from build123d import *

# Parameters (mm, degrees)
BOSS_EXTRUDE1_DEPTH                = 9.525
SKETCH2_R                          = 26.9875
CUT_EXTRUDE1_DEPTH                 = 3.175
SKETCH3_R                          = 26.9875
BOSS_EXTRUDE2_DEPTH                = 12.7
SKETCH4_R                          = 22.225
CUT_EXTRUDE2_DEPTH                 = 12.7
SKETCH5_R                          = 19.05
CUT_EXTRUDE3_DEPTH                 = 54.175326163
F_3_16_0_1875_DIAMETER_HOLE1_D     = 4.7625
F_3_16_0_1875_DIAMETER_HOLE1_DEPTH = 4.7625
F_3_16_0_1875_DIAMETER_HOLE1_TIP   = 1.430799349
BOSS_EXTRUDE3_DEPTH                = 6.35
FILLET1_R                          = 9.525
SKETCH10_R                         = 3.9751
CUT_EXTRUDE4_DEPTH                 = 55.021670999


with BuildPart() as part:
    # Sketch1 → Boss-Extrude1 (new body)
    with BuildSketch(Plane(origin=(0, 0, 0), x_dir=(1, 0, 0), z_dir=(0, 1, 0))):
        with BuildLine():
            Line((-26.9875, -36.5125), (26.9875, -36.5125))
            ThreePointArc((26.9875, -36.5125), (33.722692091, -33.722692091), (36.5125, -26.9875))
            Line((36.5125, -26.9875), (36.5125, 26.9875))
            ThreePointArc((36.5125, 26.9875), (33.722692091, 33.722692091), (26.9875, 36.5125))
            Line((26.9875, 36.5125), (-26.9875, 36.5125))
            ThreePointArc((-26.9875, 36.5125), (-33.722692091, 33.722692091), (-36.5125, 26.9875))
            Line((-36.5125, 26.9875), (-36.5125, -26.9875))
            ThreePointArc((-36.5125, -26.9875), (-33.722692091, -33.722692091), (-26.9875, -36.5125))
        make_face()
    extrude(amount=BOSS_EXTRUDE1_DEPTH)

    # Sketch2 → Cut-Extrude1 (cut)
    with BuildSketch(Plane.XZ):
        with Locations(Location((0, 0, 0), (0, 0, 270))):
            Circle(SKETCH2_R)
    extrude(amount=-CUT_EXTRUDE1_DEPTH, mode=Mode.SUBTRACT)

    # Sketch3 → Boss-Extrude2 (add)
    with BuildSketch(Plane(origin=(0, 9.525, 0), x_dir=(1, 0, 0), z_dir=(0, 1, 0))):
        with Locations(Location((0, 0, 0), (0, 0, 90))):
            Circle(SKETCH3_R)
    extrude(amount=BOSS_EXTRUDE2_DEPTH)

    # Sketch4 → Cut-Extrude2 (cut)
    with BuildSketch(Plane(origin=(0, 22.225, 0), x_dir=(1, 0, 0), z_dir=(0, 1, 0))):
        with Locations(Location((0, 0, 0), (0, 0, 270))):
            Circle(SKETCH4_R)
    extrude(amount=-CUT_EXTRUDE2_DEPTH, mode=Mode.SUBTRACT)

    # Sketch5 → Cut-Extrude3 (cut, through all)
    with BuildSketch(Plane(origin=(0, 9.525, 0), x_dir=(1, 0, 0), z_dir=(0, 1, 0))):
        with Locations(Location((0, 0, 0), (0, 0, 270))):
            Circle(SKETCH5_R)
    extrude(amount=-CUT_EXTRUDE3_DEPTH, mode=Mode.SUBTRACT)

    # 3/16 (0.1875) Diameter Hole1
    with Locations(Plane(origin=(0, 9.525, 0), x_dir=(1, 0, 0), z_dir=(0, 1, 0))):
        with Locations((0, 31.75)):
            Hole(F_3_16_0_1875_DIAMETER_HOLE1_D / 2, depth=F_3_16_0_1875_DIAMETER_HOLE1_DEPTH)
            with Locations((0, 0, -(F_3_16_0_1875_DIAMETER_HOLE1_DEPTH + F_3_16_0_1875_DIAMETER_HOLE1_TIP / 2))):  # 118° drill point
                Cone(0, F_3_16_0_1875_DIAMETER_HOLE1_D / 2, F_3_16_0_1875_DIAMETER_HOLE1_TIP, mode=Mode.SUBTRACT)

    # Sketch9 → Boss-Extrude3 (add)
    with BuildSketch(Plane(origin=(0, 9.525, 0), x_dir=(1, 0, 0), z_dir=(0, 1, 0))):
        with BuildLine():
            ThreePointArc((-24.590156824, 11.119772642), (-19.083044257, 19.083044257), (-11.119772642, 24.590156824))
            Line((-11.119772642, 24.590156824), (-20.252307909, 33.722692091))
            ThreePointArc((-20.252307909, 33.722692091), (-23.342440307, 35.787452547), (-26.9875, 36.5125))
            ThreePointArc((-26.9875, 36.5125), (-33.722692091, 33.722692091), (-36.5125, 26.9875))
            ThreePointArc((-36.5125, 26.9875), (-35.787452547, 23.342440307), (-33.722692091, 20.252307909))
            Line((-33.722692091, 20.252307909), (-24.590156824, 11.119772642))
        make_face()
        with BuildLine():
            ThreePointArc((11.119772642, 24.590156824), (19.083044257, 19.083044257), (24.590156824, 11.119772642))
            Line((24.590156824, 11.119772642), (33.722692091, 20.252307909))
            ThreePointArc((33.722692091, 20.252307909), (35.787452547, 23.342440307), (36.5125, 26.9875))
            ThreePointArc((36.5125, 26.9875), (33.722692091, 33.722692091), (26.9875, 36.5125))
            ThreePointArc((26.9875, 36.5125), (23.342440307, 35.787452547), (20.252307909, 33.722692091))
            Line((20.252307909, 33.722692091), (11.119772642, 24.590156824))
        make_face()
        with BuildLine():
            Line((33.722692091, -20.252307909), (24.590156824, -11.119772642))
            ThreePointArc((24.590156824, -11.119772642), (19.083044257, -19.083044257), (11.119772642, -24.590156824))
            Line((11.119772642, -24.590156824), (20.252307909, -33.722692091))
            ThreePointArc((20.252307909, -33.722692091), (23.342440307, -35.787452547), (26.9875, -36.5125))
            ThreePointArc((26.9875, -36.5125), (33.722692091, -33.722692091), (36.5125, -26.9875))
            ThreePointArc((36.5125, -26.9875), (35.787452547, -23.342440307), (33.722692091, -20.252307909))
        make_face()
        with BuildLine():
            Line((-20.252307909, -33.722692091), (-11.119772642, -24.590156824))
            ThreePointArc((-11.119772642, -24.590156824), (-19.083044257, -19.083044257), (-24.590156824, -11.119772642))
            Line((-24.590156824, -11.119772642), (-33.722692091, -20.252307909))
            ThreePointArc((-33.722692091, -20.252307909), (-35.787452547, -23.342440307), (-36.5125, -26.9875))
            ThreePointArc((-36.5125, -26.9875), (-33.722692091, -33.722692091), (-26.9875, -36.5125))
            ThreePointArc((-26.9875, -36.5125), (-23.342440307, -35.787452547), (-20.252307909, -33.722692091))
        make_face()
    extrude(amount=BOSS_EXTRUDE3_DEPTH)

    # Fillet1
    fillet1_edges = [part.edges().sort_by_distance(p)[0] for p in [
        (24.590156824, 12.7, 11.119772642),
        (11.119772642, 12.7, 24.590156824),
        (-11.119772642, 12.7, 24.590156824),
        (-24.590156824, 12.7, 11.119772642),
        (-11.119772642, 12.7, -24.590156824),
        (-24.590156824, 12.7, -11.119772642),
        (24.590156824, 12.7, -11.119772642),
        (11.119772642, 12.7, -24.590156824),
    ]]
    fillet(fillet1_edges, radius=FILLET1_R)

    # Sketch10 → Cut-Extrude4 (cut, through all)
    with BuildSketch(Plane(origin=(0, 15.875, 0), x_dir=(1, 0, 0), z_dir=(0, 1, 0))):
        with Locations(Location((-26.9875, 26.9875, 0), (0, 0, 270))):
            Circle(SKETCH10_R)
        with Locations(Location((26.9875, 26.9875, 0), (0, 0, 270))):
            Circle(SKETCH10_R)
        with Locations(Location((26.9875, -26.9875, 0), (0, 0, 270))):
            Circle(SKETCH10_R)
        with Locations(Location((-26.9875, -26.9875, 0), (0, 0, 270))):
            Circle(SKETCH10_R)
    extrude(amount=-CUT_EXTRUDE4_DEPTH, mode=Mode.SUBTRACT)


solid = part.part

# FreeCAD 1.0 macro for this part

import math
import FreeCAD as App
import Part
import Sketcher
Q = App.Units.Quantity


def edges_at(feature, points):
    """Names of the edges that pass closest to the given points."""
    edges = feature.Shape.Edges
    near = lambda p: min(range(len(edges)), key=lambda i: edges[i].distToShape(Part.Vertex(*p))[0])
    return sorted({f"Edge{near(p) + 1}" for p in points})

doc = App.newDocument("Part")
body = doc.addObject("PartDesign::Body", "Body")

sketch1 = body.newObject("Sketcher::SketchObject", "Sketch")
sketch1.AttachmentSupport = (doc.getObject("XZ_Plane"), [""])
sketch1.MapMode = "FlatFace"
sketch1.addGeometry(Part.LineSegment(App.Vector(-27, 37, 0), App.Vector(27, 37, 0)), False)
sketch1.addGeometry(Part.ArcOfCircle(Part.Circle(App.Vector(27, 27, 0), App.Vector(0, 0, 1), 10), math.radians(0), math.radians(90)), False)
sketch1.addGeometry(Part.LineSegment(App.Vector(37, 27, 0), App.Vector(37, -27, 0)), False)
sketch1.addGeometry(Part.ArcOfCircle(Part.Circle(App.Vector(27, -27, 0), App.Vector(0, 0, 1), 10), math.radians(-90), math.radians(0)), False)
sketch1.addGeometry(Part.LineSegment(App.Vector(27, -37, 0), App.Vector(-27, -37, 0)), False)
sketch1.addGeometry(Part.ArcOfCircle(Part.Circle(App.Vector(-27, -27, 0), App.Vector(0, 0, 1), 10), math.radians(180), math.radians(270)), False)
sketch1.addGeometry(Part.LineSegment(App.Vector(-37, -27, 0), App.Vector(-37, 27, 0)), False)
sketch1.addGeometry(Part.ArcOfCircle(Part.Circle(App.Vector(-27, 27, 0), App.Vector(0, 0, 1), 10), math.radians(90), math.radians(180)), False)
sketch1.addConstraint(Sketcher.Constraint("Tangent", 0, 2, 1, 2))
sketch1.addConstraint(Sketcher.Constraint("Tangent", 1, 1, 2, 1))
sketch1.addConstraint(Sketcher.Constraint("Tangent", 2, 2, 3, 2))
sketch1.addConstraint(Sketcher.Constraint("Tangent", 3, 1, 4, 1))
sketch1.addConstraint(Sketcher.Constraint("Tangent", 4, 2, 5, 2))
sketch1.addConstraint(Sketcher.Constraint("Tangent", 5, 1, 6, 1))
sketch1.addConstraint(Sketcher.Constraint("Tangent", 6, 2, 7, 2))
sketch1.addConstraint(Sketcher.Constraint("Tangent", 7, 1, 0, 1))
sketch1.addConstraint(Sketcher.Constraint("Horizontal", 0))
sketch1.addConstraint(Sketcher.Constraint("Vertical", 2))
sketch1.addConstraint(Sketcher.Constraint("Horizontal", 4))
sketch1.addConstraint(Sketcher.Constraint("Vertical", 6))
sketch1.addConstraint(Sketcher.Constraint("Equal", 1, 3))
sketch1.addConstraint(Sketcher.Constraint("Equal", 3, 5))
sketch1.addConstraint(Sketcher.Constraint("Equal", 5, 7))
sketch1.addConstraint(Sketcher.Constraint("Symmetric", 1, 3, 5, 3, -1, 1))
sketch1.addConstraint(Sketcher.Constraint("Equal", 4, 2))
sketch1.addConstraint(Sketcher.Constraint("Radius", 1, Q("0.375 in")))
sketch1.addConstraint(Sketcher.Constraint("DistanceY", 3, 3, 0, 2, Q("2.5 in")))
pad1 = body.newObject("PartDesign::Pad", "Pad")
pad1.Profile = sketch1
pad1.Length = Q("0.375 in")
pad1.Reversed = True

sketch2 = body.newObject("Sketcher::SketchObject", "Sketch001")
sketch2.AttachmentSupport = (doc.getObject("XZ_Plane"), [""])
sketch2.MapMode = "FlatFace"
sketch2.addGeometry(Part.Circle(App.Vector(0, 0, 0), App.Vector(0, 0, 1), 27), False)
sketch2.addConstraint(Sketcher.Constraint("Coincident", 0, 3, -1, 1))
sketch2.addConstraint(Sketcher.Constraint("Diameter", 0, Q("2.125 in")))
pocket1 = body.newObject("PartDesign::Pocket", "Pocket")
pocket1.Profile = sketch2
pocket1.Length = Q("0.125 in")

sketch3 = body.newObject("Sketcher::SketchObject", "Sketch002")
sketch3.AttachmentSupport = (doc.getObject("XZ_Plane"), [""])
sketch3.MapMode = "FlatFace"
sketch3.AttachmentOffset = App.Placement(App.Vector(0, 0, -0.375 * 25.4), App.Rotation())
sketch3.addGeometry(Part.Circle(App.Vector(0, 0, 0), App.Vector(0, 0, 1), 27), False)
sketch3.addConstraint(Sketcher.Constraint("Coincident", 0, 3, -1, 1))
sketch3.addConstraint(Sketcher.Constraint("Diameter", 0, Q("2.125 in")))
pad2 = body.newObject("PartDesign::Pad", "Pad001")
pad2.Profile = sketch3
pad2.Length = Q("0.5 in")
pad2.Reversed = True

sketch4 = body.newObject("Sketcher::SketchObject", "Sketch003")
sketch4.AttachmentSupport = (doc.getObject("XZ_Plane"), [""])
sketch4.MapMode = "FlatFace"
sketch4.AttachmentOffset = App.Placement(App.Vector(0, 0, -0.875 * 25.4), App.Rotation())
sketch4.addGeometry(Part.Circle(App.Vector(0, 0, 0), App.Vector(0, 0, 1), 22), False)
sketch4.addConstraint(Sketcher.Constraint("Coincident", 0, 3, -1, 1))
sketch4.addConstraint(Sketcher.Constraint("Diameter", 0, Q("1.75 in")))
pocket2 = body.newObject("PartDesign::Pocket", "Pocket001")
pocket2.Profile = sketch4
pocket2.Length = Q("0.5 in")
pocket2.Reversed = True

sketch5 = body.newObject("Sketcher::SketchObject", "Sketch004")
sketch5.AttachmentSupport = (doc.getObject("XZ_Plane"), [""])
sketch5.MapMode = "FlatFace"
sketch5.AttachmentOffset = App.Placement(App.Vector(0, 0, -0.375 * 25.4), App.Rotation())
sketch5.addGeometry(Part.Circle(App.Vector(0, 0, 0), App.Vector(0, 0, 1), 19), False)
sketch5.addConstraint(Sketcher.Constraint("Coincident", 0, 3, -1, 1))
sketch5.addConstraint(Sketcher.Constraint("Diameter", 0, Q("1.5 in")))
pocket3 = body.newObject("PartDesign::Pocket", "Pocket002")
pocket3.Profile = sketch5
pocket3.Type = "ThroughAll"
pocket3.Reversed = True

sketch6 = body.newObject("Sketcher::SketchObject", "Sketch005")
sketch6.AttachmentSupport = (doc.getObject("XZ_Plane"), [""])
sketch6.MapMode = "FlatFace"
sketch6.AttachmentOffset = App.Placement(App.Vector(0, 0, -0.375 * 25.4), App.Rotation())
sketch6.addGeometry(Part.Circle(App.Vector(0, -31.8, 0), App.Vector(0, 0, 1), 2.4), False)
sketch6.addConstraint(Sketcher.Constraint("PointOnObject", 0, 3, -2))
sketch6.addConstraint(Sketcher.Constraint("Diameter", 0, Q("0.1875 in")))
sketch6.addConstraint(Sketcher.Constraint("DistanceY", 0, 3, -1, 1, Q("1.25 in")))
doc.recompute()
hole = body.newObject("PartDesign::Hole", "Hole")
hole.Profile = sketch6
hole.ThreadType = "None"
hole.Diameter = Q("0.1875 in")
hole.DepthType = "Dimension"
hole.Depth = Q("0.1875 in")
hole.DrillPoint = "Angled"
hole.DrillPointAngle = 118
hole.Reversed = True

sketch7 = body.newObject("Sketcher::SketchObject", "Sketch006")
sketch7.AttachmentSupport = (doc.getObject("XZ_Plane"), [""])
sketch7.MapMode = "FlatFace"
sketch7.AttachmentOffset = App.Placement(App.Vector(0, 0, -0.375 * 25.4), App.Rotation())
sketch7.addGeometry(Part.ArcOfCircle(Part.Circle(App.Vector(0, 0, 0), App.Vector(0, 0, 1), 27), math.radians(-156), math.radians(-114)), False)
sketch7.addGeometry(Part.LineSegment(App.Vector(-11, -25, 0), App.Vector(-20, -34, 0)), False)
sketch7.addGeometry(Part.ArcOfCircle(Part.Circle(App.Vector(-27, -27, 0), App.Vector(0, 0, 1), 10), math.radians(-90), math.radians(-45)), False)
sketch7.addGeometry(Part.ArcOfCircle(Part.Circle(App.Vector(-27, -27, 0), App.Vector(0, 0, 1), 10), math.radians(180), math.radians(270)), False)
sketch7.addGeometry(Part.ArcOfCircle(Part.Circle(App.Vector(-27, -27, 0), App.Vector(0, 0, 1), 10), math.radians(135), math.radians(180)), False)
sketch7.addGeometry(Part.LineSegment(App.Vector(-34, -20, 0), App.Vector(-25, -11, 0)), False)
sketch7.addGeometry(Part.ArcOfCircle(Part.Circle(App.Vector(0, 0, 0), App.Vector(0, 0, 1), 27), math.radians(-66), math.radians(-24)), False)
sketch7.addGeometry(Part.LineSegment(App.Vector(25, -11, 0), App.Vector(34, -20, 0)), False)
sketch7.addGeometry(Part.ArcOfCircle(Part.Circle(App.Vector(27, -27, 0), App.Vector(0, 0, 1), 10), math.radians(0), math.radians(45)), False)
sketch7.addGeometry(Part.ArcOfCircle(Part.Circle(App.Vector(27, -27, 0), App.Vector(0, 0, 1), 10), math.radians(-90), math.radians(0)), False)
sketch7.addGeometry(Part.ArcOfCircle(Part.Circle(App.Vector(27, -27, 0), App.Vector(0, 0, 1), 10), math.radians(-135), math.radians(-90)), False)
sketch7.addGeometry(Part.LineSegment(App.Vector(20, -34, 0), App.Vector(11, -25, 0)), False)
sketch7.addGeometry(Part.LineSegment(App.Vector(34, 20, 0), App.Vector(25, 11, 0)), False)
sketch7.addGeometry(Part.ArcOfCircle(Part.Circle(App.Vector(0, 0, 0), App.Vector(0, 0, 1), 27), math.radians(24), math.radians(66)), False)
sketch7.addGeometry(Part.LineSegment(App.Vector(11, 25, 0), App.Vector(20, 34, 0)), False)
sketch7.addGeometry(Part.ArcOfCircle(Part.Circle(App.Vector(27, 27, 0), App.Vector(0, 0, 1), 10), math.radians(90), math.radians(135)), False)
sketch7.addGeometry(Part.ArcOfCircle(Part.Circle(App.Vector(27, 27, 0), App.Vector(0, 0, 1), 10), math.radians(0), math.radians(90)), False)
sketch7.addGeometry(Part.ArcOfCircle(Part.Circle(App.Vector(27, 27, 0), App.Vector(0, 0, 1), 10), math.radians(-45), math.radians(0)), False)
sketch7.addGeometry(Part.LineSegment(App.Vector(-20, 34, 0), App.Vector(-11, 25, 0)), False)
sketch7.addGeometry(Part.ArcOfCircle(Part.Circle(App.Vector(0, 0, 0), App.Vector(0, 0, 1), 27), math.radians(114), math.radians(156)), False)
sketch7.addGeometry(Part.LineSegment(App.Vector(-25, 11, 0), App.Vector(-34, 20, 0)), False)
sketch7.addGeometry(Part.ArcOfCircle(Part.Circle(App.Vector(-27, 27, 0), App.Vector(0, 0, 1), 10), math.radians(-180), math.radians(-135)), False)
sketch7.addGeometry(Part.ArcOfCircle(Part.Circle(App.Vector(-27, 27, 0), App.Vector(0, 0, 1), 10), math.radians(90), math.radians(180)), False)
sketch7.addGeometry(Part.ArcOfCircle(Part.Circle(App.Vector(-27, 27, 0), App.Vector(0, 0, 1), 10), math.radians(45), math.radians(90)), False)
sketch7.addConstraint(Sketcher.Constraint("Coincident", 0, 2, 1, 1))
sketch7.addConstraint(Sketcher.Constraint("Tangent", 1, 2, 2, 2))
sketch7.addConstraint(Sketcher.Constraint("Tangent", 2, 1, 3, 2))
sketch7.addConstraint(Sketcher.Constraint("Tangent", 3, 1, 4, 2))
sketch7.addConstraint(Sketcher.Constraint("Tangent", 4, 1, 5, 1))
sketch7.addConstraint(Sketcher.Constraint("Coincident", 5, 2, 0, 1))
sketch7.addConstraint(Sketcher.Constraint("Coincident", 6, 2, 7, 1))
sketch7.addConstraint(Sketcher.Constraint("Tangent", 7, 2, 8, 2))
sketch7.addConstraint(Sketcher.Constraint("Tangent", 8, 1, 9, 2))
sketch7.addConstraint(Sketcher.Constraint("Tangent", 9, 1, 10, 2))
sketch7.addConstraint(Sketcher.Constraint("Tangent", 10, 1, 11, 1))
sketch7.addConstraint(Sketcher.Constraint("Coincident", 11, 2, 6, 1))
sketch7.addConstraint(Sketcher.Constraint("Coincident", 12, 2, 13, 1))
sketch7.addConstraint(Sketcher.Constraint("Coincident", 13, 2, 14, 1))
sketch7.addConstraint(Sketcher.Constraint("Tangent", 14, 2, 15, 2))
sketch7.addConstraint(Sketcher.Constraint("Tangent", 15, 1, 16, 2))
sketch7.addConstraint(Sketcher.Constraint("Tangent", 16, 1, 17, 2))
sketch7.addConstraint(Sketcher.Constraint("Tangent", 17, 1, 12, 1))
sketch7.addConstraint(Sketcher.Constraint("Coincident", 18, 2, 19, 1))
sketch7.addConstraint(Sketcher.Constraint("Coincident", 19, 2, 20, 1))
sketch7.addConstraint(Sketcher.Constraint("Tangent", 20, 2, 21, 2))
sketch7.addConstraint(Sketcher.Constraint("Tangent", 21, 1, 22, 2))
sketch7.addConstraint(Sketcher.Constraint("Tangent", 22, 1, 23, 2))
sketch7.addConstraint(Sketcher.Constraint("Tangent", 23, 1, 18, 1))
sketch7.addConstraint(Sketcher.Constraint("Coincident", 0, 3, -1, 1))
sketch7.addConstraint(Sketcher.Constraint("Coincident", 6, 3, -1, 1))
sketch7.addConstraint(Sketcher.Constraint("Coincident", 13, 3, -1, 1))
sketch7.addConstraint(Sketcher.Constraint("Coincident", 19, 3, -1, 1))
sketch7.addConstraint(Sketcher.Constraint("Coincident", 4, 3, 2, 3))
sketch7.addConstraint(Sketcher.Constraint("Coincident", 10, 3, 8, 3))
sketch7.addConstraint(Sketcher.Constraint("Coincident", 17, 3, 15, 3))
sketch7.addConstraint(Sketcher.Constraint("Coincident", 23, 3, 21, 3))
sketch7.addConstraint(Sketcher.Constraint("Equal", 0, 6))
sketch7.addConstraint(Sketcher.Constraint("Equal", 4, 8))
sketch7.addConstraint(Sketcher.Constraint("Equal", 6, 13))
sketch7.addConstraint(Sketcher.Constraint("Equal", 10, 15))
sketch7.addConstraint(Sketcher.Constraint("Equal", 13, 19))
sketch7.addConstraint(Sketcher.Constraint("Equal", 17, 21))
sketch7.addConstraint(Sketcher.Constraint("Symmetric", 2, 3, 15, 3, -1, 1))
sketch7.addConstraint(Sketcher.Constraint("Symmetric", 8, 3, 21, 3, -1, 1))
sketch7.addConstraint(Sketcher.Constraint("Symmetric", 2, 3, 8, 3, -2))
sketch7.addConstraint(Sketcher.Constraint("Parallel", 1, 5))
sketch7.addConstraint(Sketcher.Constraint("Perpendicular", 5, 7))
sketch7.addConstraint(Sketcher.Constraint("Parallel", 7, 11))
sketch7.addConstraint(Sketcher.Constraint("Perpendicular", 11, 12))
sketch7.addConstraint(Sketcher.Constraint("Parallel", 12, 14))
sketch7.addConstraint(Sketcher.Constraint("Perpendicular", 14, 18))
sketch7.addConstraint(Sketcher.Constraint("Parallel", 18, 20))
sketch7.addConstraint(Sketcher.Constraint("Horizontal", 10, 3, 3, 1))
sketch7.addConstraint(Sketcher.Constraint("Horizontal", 5, 2, 6, 2))
sketch7.addConstraint(Sketcher.Constraint("Horizontal", 3, 1, 8, 1))
sketch7.addConstraint(Sketcher.Constraint("Horizontal", 23, 3, 16, 1))
sketch7.addConstraint(Sketcher.Constraint("Horizontal", 16, 1, 21, 1))
sketch7.addConstraint(Sketcher.Constraint("Vertical", 23, 3, 2, 1))
sketch7.addConstraint(Sketcher.Constraint("Vertical", 17, 3, 9, 1))
sketch7.addConstraint(Sketcher.Constraint("Vertical", 9, 1, 15, 1))
sketch7.addConstraint(Sketcher.Constraint("Vertical", 2, 1, 22, 1))
sketch7.addConstraint(Sketcher.Constraint("Equal", 1, 5))
sketch7.addConstraint(Sketcher.Constraint("Radius", 0, Q("1.0625 in")))
sketch7.addConstraint(Sketcher.Constraint("Radius", 2, Q("0.375 in")))
sketch7.addConstraint(Sketcher.Constraint("DistanceX", 2, 3, -1, 1, Q("1.0625 in")))
pad3 = body.newObject("PartDesign::Pad", "Pad002")
pad3.Profile = sketch7
pad3.Length = Q("0.25 in")
pad3.Reversed = True
doc.recompute()

fillet = body.newObject("PartDesign::Fillet", "Fillet")
fillet.Base = (pad3, edges_at(pad3, [
    (24.59, 12.7, 11.12),
    (11.12, 12.7, 24.59),
    (-11.12, 12.7, 24.59),
    (-24.59, 12.7, 11.12),
    (-11.12, 12.7, -24.59),
    (-24.59, 12.7, -11.12),
    (24.59, 12.7, -11.12),
    (11.12, 12.7, -24.59),
]))
fillet.Radius = Q("0.375 in")

sketch8 = body.newObject("Sketcher::SketchObject", "Sketch007")
sketch8.AttachmentSupport = (doc.getObject("XZ_Plane"), [""])
sketch8.MapMode = "FlatFace"
sketch8.AttachmentOffset = App.Placement(App.Vector(0, 0, -0.625 * 25.4), App.Rotation())
sketch8.addGeometry(Part.Circle(App.Vector(-27, -27, 0), App.Vector(0, 0, 1), 4), False)
sketch8.addGeometry(Part.Circle(App.Vector(27, -27, 0), App.Vector(0, 0, 1), 4), False)
sketch8.addGeometry(Part.Circle(App.Vector(27, 27, 0), App.Vector(0, 0, 1), 4), False)
sketch8.addGeometry(Part.Circle(App.Vector(-27, 27, 0), App.Vector(0, 0, 1), 4), False)
sketch8.addConstraint(Sketcher.Constraint("Equal", 0, 1))
sketch8.addConstraint(Sketcher.Constraint("Equal", 1, 2))
sketch8.addConstraint(Sketcher.Constraint("Equal", 2, 3))
sketch8.addConstraint(Sketcher.Constraint("Symmetric", 0, 3, 2, 3, -1, 1))
sketch8.addConstraint(Sketcher.Constraint("Symmetric", 1, 3, 3, 3, -1, 1))
sketch8.addConstraint(Sketcher.Constraint("Symmetric", 0, 3, 1, 3, -2))
sketch8.addConstraint(Sketcher.Constraint("Diameter", 0, Q("0.313 in")))
sketch8.addConstraint(Sketcher.Constraint("DistanceX", 0, 3, -1, 1, Q("1.0625 in")))
sketch8.addConstraint(Sketcher.Constraint("DistanceY", 0, 3, -1, 1, Q("1.0625 in")))
pocket4 = body.newObject("PartDesign::Pocket", "Pocket003")
pocket4.Profile = sketch8
pocket4.Type = "ThroughAll"
pocket4.Reversed = True

doc.recompute()
